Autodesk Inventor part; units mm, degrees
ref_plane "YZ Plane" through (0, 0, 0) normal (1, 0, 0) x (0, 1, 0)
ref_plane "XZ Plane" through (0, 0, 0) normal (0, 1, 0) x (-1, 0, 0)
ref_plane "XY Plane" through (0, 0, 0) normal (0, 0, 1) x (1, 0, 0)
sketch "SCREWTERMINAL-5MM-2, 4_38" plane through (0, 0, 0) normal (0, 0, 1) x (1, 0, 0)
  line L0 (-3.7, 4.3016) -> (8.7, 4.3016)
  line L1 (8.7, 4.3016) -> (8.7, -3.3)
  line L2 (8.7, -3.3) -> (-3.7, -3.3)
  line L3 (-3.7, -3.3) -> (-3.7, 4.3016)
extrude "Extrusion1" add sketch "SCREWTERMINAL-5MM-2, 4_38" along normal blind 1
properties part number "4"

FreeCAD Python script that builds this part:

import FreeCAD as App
import Part
import Sketcher
from FreeCAD import Vector


def add_polygon(sketch, points):
    """Adds a closed chain of lines whose ends are joined by coincident constraints."""
    first, n = sketch.GeometryCount, len(points)
    for a, b in zip(points, points[1:] + points[:1]):
        sketch.addGeometry(Part.LineSegment(App.Vector(*a, 0), App.Vector(*b, 0)), False)
    for i in range(n):
        sketch.addConstraint(Sketcher.Constraint("Coincident", first + i, 2, first + (i + 1) % n, 1))

doc = App.newDocument("Part")
params = doc.addObject("Spreadsheet::Sheet", "Params")
for row, (alias, value) in enumerate([
    ("sketch1_width", "12.4 mm"),
    ("pad1_length", "1 mm"),
], start=1):
    params.set(f"A{row}", alias)
    params.set(f"B{row}", "=" + value)
    params.setAlias(f"B{row}", alias)

body = doc.addObject("PartDesign::Body", "Body")

sketch1 = body.newObject("Sketcher::SketchObject", "Sketch")
sketch1.AttachmentSupport = (doc.getObject("XY_Plane"), [""])
sketch1.MapMode = "FlatFace"
add_polygon(sketch1, [(9, 4), (-4, 4), (-4, -3), (9, -3)])
sketch1.addConstraint(Sketcher.Constraint("Horizontal", 0))
sketch1.addConstraint(Sketcher.Constraint("Vertical", 1))
sketch1.addConstraint(Sketcher.Constraint("Horizontal", 2))
sketch1.addConstraint(Sketcher.Constraint("Vertical", 3))
sketch1.addConstraint(Sketcher.Constraint("DistanceX", 0, 2, 0, 1, 12.4))
sketch1.addConstraint(Sketcher.Constraint("DistanceX", 0, 2, -1, 1, 3.7))
sketch1.addConstraint(Sketcher.Constraint("DistanceY", 1, 2, -1, 1, 3.3))
sketch1.addConstraint(Sketcher.Constraint("DistanceY", 1, 2, 1, 1, 7.6016))
sketch1.setExpression("Constraints[8]", "Params.sketch1_width")
pad1 = body.newObject("PartDesign::Pad", "Pad")
pad1.Profile = sketch1
pad1.setExpression("Length", "Params.pad1_length")

doc.recompute()
